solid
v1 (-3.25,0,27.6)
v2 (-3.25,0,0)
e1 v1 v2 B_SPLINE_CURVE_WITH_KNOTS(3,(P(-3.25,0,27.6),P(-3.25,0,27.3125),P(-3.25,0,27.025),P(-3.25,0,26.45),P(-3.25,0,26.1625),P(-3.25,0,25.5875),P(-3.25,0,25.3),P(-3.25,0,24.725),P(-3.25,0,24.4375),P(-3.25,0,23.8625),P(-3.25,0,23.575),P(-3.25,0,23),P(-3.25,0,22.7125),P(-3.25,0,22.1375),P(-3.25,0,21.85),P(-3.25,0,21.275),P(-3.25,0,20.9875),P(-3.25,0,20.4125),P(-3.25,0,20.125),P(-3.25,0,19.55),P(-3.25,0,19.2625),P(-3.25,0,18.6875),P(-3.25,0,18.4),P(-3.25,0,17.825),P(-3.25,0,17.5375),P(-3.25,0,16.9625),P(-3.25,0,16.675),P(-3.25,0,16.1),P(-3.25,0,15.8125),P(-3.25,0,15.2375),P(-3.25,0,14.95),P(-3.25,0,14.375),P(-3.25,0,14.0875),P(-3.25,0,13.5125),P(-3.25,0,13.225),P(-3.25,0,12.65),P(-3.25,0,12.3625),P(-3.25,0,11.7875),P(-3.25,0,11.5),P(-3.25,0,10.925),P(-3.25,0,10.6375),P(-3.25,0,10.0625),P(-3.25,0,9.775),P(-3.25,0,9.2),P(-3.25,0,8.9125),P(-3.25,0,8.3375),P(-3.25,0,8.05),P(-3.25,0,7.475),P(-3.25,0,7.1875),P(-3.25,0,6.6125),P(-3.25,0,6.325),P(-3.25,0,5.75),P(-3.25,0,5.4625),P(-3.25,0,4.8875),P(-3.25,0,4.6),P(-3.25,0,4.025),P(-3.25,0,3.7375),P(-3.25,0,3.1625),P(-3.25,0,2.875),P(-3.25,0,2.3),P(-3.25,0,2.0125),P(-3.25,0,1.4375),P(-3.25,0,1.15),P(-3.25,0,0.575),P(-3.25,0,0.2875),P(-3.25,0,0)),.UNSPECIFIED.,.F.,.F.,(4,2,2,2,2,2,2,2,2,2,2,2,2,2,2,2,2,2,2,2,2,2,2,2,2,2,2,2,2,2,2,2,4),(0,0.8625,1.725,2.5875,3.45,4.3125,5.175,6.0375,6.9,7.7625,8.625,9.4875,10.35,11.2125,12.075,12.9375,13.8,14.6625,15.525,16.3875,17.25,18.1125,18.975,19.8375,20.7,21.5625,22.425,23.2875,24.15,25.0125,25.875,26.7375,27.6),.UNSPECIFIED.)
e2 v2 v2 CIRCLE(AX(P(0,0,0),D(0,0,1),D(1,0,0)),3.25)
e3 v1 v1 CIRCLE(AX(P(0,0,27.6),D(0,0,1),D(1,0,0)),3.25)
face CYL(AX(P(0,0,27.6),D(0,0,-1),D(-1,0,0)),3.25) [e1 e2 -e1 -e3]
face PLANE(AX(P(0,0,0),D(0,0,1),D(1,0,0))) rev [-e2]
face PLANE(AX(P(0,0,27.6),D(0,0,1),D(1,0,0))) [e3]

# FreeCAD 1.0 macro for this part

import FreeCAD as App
import Part
import Sketcher
from FreeCAD import Vector
Q = App.Units.Quantity

doc = App.newDocument("Part")
body = doc.addObject("PartDesign::Body", "Body")

# Sketch on XY plane
sketch1 = body.newObject("Sketcher::SketchObject", "Sketch")
sketch1.AttachmentSupport = (doc.getObject("XY_Plane"), [""])
sketch1.MapMode = "FlatFace"
sketch1.addGeometry(Part.Circle(Vector(0, 0, 0), Vector(0, 0, 1), 3.2), False)
sketch1.addConstraint([
    Sketcher.Constraint("Coincident", 0, 3, -1, 1),
    Sketcher.Constraint("Diameter", 0, Q("6.5 mm")),
])
pad1 = body.newObject("PartDesign::Pad", "Pad")
pad1.Profile = sketch1
pad1.Length = 27.6

doc.recompute()
